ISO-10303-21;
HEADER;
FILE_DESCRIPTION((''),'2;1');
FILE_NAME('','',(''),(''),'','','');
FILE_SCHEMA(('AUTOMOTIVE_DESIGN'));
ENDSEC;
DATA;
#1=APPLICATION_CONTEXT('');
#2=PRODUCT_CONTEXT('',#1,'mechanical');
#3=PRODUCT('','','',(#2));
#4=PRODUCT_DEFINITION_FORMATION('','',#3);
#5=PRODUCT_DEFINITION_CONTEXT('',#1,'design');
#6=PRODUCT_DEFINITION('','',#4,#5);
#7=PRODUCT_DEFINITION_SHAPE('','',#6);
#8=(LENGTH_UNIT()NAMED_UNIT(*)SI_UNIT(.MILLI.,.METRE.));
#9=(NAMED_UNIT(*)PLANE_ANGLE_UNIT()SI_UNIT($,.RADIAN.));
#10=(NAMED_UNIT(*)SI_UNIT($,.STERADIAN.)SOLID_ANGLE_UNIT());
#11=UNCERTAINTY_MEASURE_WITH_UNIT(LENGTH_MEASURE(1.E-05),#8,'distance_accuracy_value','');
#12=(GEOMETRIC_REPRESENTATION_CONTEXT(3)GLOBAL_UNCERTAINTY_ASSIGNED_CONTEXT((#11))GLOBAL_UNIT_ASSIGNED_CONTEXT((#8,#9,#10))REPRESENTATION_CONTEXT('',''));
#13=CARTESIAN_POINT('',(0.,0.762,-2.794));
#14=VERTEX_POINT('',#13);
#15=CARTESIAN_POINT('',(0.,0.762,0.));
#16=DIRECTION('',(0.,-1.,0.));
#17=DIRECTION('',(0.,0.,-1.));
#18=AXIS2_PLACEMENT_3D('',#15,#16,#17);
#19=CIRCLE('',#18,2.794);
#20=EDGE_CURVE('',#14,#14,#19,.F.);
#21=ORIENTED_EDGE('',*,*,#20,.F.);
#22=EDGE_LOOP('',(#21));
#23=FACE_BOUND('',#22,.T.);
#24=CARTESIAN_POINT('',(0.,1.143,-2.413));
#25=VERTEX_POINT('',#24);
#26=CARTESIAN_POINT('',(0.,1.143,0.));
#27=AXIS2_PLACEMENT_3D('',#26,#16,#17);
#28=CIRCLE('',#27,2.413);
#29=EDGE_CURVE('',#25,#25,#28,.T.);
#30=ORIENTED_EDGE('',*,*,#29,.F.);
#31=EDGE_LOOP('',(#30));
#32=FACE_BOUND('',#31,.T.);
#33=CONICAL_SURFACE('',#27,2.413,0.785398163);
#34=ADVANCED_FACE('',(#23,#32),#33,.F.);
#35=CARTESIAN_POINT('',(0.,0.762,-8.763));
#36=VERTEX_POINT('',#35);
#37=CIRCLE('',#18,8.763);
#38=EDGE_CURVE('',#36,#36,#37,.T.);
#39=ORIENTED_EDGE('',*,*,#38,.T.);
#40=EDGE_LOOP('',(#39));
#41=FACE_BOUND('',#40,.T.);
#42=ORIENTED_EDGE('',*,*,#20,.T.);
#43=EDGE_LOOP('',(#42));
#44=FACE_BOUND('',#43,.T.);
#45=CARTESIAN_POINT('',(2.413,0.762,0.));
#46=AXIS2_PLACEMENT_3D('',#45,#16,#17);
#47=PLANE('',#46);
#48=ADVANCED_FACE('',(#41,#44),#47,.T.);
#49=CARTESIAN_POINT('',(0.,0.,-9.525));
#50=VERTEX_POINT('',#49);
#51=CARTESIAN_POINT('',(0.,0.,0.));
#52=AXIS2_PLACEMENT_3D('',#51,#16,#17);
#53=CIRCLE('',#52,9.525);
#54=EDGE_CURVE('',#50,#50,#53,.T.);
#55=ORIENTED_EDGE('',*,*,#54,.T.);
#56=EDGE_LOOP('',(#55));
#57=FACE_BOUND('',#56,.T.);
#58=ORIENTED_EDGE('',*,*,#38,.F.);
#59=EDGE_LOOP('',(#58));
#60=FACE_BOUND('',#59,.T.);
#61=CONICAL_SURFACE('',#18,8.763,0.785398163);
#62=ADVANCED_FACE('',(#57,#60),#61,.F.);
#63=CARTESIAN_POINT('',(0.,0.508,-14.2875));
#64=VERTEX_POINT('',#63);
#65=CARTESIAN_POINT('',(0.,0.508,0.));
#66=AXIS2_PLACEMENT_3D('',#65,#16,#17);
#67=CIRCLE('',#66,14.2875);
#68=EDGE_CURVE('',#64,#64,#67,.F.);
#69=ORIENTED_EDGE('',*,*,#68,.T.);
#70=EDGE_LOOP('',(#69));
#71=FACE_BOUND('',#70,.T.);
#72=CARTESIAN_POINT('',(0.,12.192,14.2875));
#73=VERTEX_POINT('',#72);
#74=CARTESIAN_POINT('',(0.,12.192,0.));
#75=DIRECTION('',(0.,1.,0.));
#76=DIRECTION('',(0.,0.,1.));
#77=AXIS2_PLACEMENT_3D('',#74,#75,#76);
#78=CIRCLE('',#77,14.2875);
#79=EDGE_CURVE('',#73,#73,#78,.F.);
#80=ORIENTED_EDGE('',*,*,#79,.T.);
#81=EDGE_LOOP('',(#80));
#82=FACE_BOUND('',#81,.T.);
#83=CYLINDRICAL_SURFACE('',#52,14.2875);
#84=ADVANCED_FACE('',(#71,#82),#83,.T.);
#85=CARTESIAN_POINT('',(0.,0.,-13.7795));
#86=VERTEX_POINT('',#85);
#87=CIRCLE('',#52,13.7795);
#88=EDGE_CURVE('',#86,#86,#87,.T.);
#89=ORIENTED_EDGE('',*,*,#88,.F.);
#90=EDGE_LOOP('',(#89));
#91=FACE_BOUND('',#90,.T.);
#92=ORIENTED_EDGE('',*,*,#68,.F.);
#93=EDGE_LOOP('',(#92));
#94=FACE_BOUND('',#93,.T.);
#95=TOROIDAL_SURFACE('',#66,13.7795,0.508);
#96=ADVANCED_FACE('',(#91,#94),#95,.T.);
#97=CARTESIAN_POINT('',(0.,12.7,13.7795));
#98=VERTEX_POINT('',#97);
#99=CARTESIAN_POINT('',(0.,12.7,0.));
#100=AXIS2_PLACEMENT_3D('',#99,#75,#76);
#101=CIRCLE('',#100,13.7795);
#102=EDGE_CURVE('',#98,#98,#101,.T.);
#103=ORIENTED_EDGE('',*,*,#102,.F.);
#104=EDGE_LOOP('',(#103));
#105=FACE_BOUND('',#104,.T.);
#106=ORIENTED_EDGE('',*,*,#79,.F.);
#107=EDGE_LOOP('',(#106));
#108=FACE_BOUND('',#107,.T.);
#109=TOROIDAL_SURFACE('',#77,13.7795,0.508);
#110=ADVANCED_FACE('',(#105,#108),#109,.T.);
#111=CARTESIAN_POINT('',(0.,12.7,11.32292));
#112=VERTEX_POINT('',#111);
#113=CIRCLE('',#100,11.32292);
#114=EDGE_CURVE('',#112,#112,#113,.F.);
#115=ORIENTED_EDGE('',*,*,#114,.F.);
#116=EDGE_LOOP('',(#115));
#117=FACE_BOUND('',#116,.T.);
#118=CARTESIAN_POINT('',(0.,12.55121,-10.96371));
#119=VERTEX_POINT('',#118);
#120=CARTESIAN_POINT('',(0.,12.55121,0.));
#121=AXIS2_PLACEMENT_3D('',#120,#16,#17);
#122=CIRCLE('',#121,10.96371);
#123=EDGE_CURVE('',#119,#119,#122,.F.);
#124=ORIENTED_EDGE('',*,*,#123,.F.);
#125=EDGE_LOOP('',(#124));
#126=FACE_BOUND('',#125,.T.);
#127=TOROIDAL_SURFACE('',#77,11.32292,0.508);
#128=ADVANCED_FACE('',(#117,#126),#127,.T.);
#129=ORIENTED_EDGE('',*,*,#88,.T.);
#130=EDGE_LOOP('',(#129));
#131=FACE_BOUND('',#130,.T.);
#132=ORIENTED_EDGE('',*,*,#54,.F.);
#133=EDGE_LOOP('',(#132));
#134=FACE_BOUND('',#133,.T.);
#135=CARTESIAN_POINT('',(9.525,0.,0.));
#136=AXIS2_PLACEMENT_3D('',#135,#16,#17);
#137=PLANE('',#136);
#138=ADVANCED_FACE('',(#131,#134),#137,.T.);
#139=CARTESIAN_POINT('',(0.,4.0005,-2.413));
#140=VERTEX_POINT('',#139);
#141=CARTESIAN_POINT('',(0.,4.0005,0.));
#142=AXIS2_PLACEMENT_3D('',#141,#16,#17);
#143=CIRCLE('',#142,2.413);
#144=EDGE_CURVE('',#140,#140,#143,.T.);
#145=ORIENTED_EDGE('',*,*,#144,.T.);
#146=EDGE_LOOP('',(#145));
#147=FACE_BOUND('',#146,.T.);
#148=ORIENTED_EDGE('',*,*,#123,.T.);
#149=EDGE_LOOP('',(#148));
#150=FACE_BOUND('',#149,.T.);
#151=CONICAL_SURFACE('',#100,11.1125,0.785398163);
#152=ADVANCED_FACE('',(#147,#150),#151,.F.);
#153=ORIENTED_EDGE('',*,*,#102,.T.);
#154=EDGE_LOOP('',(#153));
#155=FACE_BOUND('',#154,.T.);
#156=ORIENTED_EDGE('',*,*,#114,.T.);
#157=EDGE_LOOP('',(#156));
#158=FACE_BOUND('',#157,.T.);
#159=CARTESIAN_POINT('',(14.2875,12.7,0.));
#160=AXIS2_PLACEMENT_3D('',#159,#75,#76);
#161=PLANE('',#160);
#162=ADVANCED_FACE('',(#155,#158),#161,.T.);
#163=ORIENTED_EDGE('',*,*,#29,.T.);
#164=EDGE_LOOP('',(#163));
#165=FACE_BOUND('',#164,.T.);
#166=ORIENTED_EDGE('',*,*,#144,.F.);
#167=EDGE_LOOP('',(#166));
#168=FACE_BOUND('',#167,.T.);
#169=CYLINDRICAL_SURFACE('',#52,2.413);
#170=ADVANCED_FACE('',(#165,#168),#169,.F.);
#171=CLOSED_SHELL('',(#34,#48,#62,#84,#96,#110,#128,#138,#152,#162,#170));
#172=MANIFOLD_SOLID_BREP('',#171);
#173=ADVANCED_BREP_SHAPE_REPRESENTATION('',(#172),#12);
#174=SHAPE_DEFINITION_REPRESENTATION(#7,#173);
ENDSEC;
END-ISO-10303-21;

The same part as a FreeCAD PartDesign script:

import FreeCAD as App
import Part
import Sketcher
Q = App.Units.Quantity


def edges_at(feature, points):
    """Names of the edges that pass closest to the given points."""
    edges = feature.Shape.Edges
    near = lambda p: min(range(len(edges)), key=lambda i: edges[i].distToShape(Part.Vertex(*p))[0])
    return sorted({f"Edge{near(p) + 1}" for p in points})


def add_polygon(sketch, points):
    """Adds a closed chain of lines whose ends are joined by coincident constraints."""
    first, n = sketch.GeometryCount, len(points)
    for a, b in zip(points, points[1:] + points[:1]):
        sketch.addGeometry(Part.LineSegment(App.Vector(*a, 0), App.Vector(*b, 0)), False)
    for i in range(n):
        sketch.addConstraint(Sketcher.Constraint("Coincident", first + i, 2, first + (i + 1) % n, 1))

doc = App.newDocument("Part")
params = doc.addObject("Spreadsheet::Sheet", "Params")
for row, (alias, value) in enumerate([
    ("sketch1_height", "0.5 in"),
    ("sketch1_width", "0.25 in"),
    ("sketch1_width2", "0.1875 in"),
    ("sketch1_width3", "0.125 in"),
    ("revolution_angle", "360 deg"),
    ("chamfer_size", "0.015 in"),
    ("fillet_radius", "0.02 in"),
], start=1):
    params.set(f"A{row}", alias)
    params.set(f"B{row}", "=" + value)
    params.setAlias(f"B{row}", alias)

body = doc.addObject("PartDesign::Body", "Body")

# Sketch on XY plane
sketch1 = doc.addObject("Sketcher::SketchObject", "Sketch")
body.addObject(sketch1)
sketch1.AttachmentSupport = (doc.XY_Plane, [""])
sketch1.MapMode = "FlatFace"
add_polygon(sketch1, [(2.413, 0.762), (8.763, 0.762), (9.525, 0), (14.2875, 0), (14.2875, 12.7), (11.1125, 12.7), (2.413, 4.0005)])  # lines 0-6
sketch1.addConstraint([
    Sketcher.Constraint("Horizontal", 0),
    Sketcher.Constraint("Horizontal", 2),
    Sketcher.Constraint("Vertical", 3),
    Sketcher.Constraint("Horizontal", 4),
    Sketcher.Constraint("Vertical", 6),
    Sketcher.Constraint("PointOnObject", 1, 2, -1),
    Sketcher.Constraint("Perpendicular", 1, 5),
    Sketcher.Constraint("DistanceY", 3, 1, 3, 2, Q("0.5 in")),
    Sketcher.Constraint("Angle", 1, Q("-45 deg")),
    Sketcher.Constraint("DistanceX", 0, 1, 0, 2, Q("0.25 in")),
    Sketcher.Constraint("DistanceX", 2, 1, 2, 2, Q("0.1875 in")),
    Sketcher.Constraint("DistanceX", 4, 2, 4, 1, Q("0.125 in")),
    Sketcher.Constraint("DistanceY", -1, 1, 0, 2, Q("0.03 in")),
    Sketcher.Constraint("DistanceX", -1, 1, 0, 2, Q("0.345 in")),
])
sketch1.setExpression("Constraints[14]", "Params.sketch1_height")
sketch1.setExpression("Constraints[16]", "Params.sketch1_width")
sketch1.setExpression("Constraints[17]", "Params.sketch1_width2")
sketch1.setExpression("Constraints[18]", "Params.sketch1_width3")
revolution = doc.addObject("PartDesign::Revolution", "Revolution")
body.addObject(revolution)
revolution.Profile = sketch1
revolution.ReferenceAxis = (sketch1, ["V_Axis"])
revolution.setExpression("Angle", "Params.revolution_angle")
doc.recompute()

chamfer = doc.addObject("PartDesign::Chamfer", "Chamfer")
body.addObject(chamfer)
chamfer.Base = (revolution, edges_at(revolution, [(0, 0.762, 2.413)]))
chamfer.setExpression("Size", "Params.chamfer_size")
doc.recompute()

fillet = doc.addObject("PartDesign::Fillet", "Fillet")
body.addObject(fillet)
fillet.Base = (chamfer, edges_at(chamfer, [(0, 0, 14.287), (0, 12.7, 14.287), (0, 12.7, 11.113)]))
fillet.setExpression("Radius", "Params.fillet_radius")

doc.recompute()
